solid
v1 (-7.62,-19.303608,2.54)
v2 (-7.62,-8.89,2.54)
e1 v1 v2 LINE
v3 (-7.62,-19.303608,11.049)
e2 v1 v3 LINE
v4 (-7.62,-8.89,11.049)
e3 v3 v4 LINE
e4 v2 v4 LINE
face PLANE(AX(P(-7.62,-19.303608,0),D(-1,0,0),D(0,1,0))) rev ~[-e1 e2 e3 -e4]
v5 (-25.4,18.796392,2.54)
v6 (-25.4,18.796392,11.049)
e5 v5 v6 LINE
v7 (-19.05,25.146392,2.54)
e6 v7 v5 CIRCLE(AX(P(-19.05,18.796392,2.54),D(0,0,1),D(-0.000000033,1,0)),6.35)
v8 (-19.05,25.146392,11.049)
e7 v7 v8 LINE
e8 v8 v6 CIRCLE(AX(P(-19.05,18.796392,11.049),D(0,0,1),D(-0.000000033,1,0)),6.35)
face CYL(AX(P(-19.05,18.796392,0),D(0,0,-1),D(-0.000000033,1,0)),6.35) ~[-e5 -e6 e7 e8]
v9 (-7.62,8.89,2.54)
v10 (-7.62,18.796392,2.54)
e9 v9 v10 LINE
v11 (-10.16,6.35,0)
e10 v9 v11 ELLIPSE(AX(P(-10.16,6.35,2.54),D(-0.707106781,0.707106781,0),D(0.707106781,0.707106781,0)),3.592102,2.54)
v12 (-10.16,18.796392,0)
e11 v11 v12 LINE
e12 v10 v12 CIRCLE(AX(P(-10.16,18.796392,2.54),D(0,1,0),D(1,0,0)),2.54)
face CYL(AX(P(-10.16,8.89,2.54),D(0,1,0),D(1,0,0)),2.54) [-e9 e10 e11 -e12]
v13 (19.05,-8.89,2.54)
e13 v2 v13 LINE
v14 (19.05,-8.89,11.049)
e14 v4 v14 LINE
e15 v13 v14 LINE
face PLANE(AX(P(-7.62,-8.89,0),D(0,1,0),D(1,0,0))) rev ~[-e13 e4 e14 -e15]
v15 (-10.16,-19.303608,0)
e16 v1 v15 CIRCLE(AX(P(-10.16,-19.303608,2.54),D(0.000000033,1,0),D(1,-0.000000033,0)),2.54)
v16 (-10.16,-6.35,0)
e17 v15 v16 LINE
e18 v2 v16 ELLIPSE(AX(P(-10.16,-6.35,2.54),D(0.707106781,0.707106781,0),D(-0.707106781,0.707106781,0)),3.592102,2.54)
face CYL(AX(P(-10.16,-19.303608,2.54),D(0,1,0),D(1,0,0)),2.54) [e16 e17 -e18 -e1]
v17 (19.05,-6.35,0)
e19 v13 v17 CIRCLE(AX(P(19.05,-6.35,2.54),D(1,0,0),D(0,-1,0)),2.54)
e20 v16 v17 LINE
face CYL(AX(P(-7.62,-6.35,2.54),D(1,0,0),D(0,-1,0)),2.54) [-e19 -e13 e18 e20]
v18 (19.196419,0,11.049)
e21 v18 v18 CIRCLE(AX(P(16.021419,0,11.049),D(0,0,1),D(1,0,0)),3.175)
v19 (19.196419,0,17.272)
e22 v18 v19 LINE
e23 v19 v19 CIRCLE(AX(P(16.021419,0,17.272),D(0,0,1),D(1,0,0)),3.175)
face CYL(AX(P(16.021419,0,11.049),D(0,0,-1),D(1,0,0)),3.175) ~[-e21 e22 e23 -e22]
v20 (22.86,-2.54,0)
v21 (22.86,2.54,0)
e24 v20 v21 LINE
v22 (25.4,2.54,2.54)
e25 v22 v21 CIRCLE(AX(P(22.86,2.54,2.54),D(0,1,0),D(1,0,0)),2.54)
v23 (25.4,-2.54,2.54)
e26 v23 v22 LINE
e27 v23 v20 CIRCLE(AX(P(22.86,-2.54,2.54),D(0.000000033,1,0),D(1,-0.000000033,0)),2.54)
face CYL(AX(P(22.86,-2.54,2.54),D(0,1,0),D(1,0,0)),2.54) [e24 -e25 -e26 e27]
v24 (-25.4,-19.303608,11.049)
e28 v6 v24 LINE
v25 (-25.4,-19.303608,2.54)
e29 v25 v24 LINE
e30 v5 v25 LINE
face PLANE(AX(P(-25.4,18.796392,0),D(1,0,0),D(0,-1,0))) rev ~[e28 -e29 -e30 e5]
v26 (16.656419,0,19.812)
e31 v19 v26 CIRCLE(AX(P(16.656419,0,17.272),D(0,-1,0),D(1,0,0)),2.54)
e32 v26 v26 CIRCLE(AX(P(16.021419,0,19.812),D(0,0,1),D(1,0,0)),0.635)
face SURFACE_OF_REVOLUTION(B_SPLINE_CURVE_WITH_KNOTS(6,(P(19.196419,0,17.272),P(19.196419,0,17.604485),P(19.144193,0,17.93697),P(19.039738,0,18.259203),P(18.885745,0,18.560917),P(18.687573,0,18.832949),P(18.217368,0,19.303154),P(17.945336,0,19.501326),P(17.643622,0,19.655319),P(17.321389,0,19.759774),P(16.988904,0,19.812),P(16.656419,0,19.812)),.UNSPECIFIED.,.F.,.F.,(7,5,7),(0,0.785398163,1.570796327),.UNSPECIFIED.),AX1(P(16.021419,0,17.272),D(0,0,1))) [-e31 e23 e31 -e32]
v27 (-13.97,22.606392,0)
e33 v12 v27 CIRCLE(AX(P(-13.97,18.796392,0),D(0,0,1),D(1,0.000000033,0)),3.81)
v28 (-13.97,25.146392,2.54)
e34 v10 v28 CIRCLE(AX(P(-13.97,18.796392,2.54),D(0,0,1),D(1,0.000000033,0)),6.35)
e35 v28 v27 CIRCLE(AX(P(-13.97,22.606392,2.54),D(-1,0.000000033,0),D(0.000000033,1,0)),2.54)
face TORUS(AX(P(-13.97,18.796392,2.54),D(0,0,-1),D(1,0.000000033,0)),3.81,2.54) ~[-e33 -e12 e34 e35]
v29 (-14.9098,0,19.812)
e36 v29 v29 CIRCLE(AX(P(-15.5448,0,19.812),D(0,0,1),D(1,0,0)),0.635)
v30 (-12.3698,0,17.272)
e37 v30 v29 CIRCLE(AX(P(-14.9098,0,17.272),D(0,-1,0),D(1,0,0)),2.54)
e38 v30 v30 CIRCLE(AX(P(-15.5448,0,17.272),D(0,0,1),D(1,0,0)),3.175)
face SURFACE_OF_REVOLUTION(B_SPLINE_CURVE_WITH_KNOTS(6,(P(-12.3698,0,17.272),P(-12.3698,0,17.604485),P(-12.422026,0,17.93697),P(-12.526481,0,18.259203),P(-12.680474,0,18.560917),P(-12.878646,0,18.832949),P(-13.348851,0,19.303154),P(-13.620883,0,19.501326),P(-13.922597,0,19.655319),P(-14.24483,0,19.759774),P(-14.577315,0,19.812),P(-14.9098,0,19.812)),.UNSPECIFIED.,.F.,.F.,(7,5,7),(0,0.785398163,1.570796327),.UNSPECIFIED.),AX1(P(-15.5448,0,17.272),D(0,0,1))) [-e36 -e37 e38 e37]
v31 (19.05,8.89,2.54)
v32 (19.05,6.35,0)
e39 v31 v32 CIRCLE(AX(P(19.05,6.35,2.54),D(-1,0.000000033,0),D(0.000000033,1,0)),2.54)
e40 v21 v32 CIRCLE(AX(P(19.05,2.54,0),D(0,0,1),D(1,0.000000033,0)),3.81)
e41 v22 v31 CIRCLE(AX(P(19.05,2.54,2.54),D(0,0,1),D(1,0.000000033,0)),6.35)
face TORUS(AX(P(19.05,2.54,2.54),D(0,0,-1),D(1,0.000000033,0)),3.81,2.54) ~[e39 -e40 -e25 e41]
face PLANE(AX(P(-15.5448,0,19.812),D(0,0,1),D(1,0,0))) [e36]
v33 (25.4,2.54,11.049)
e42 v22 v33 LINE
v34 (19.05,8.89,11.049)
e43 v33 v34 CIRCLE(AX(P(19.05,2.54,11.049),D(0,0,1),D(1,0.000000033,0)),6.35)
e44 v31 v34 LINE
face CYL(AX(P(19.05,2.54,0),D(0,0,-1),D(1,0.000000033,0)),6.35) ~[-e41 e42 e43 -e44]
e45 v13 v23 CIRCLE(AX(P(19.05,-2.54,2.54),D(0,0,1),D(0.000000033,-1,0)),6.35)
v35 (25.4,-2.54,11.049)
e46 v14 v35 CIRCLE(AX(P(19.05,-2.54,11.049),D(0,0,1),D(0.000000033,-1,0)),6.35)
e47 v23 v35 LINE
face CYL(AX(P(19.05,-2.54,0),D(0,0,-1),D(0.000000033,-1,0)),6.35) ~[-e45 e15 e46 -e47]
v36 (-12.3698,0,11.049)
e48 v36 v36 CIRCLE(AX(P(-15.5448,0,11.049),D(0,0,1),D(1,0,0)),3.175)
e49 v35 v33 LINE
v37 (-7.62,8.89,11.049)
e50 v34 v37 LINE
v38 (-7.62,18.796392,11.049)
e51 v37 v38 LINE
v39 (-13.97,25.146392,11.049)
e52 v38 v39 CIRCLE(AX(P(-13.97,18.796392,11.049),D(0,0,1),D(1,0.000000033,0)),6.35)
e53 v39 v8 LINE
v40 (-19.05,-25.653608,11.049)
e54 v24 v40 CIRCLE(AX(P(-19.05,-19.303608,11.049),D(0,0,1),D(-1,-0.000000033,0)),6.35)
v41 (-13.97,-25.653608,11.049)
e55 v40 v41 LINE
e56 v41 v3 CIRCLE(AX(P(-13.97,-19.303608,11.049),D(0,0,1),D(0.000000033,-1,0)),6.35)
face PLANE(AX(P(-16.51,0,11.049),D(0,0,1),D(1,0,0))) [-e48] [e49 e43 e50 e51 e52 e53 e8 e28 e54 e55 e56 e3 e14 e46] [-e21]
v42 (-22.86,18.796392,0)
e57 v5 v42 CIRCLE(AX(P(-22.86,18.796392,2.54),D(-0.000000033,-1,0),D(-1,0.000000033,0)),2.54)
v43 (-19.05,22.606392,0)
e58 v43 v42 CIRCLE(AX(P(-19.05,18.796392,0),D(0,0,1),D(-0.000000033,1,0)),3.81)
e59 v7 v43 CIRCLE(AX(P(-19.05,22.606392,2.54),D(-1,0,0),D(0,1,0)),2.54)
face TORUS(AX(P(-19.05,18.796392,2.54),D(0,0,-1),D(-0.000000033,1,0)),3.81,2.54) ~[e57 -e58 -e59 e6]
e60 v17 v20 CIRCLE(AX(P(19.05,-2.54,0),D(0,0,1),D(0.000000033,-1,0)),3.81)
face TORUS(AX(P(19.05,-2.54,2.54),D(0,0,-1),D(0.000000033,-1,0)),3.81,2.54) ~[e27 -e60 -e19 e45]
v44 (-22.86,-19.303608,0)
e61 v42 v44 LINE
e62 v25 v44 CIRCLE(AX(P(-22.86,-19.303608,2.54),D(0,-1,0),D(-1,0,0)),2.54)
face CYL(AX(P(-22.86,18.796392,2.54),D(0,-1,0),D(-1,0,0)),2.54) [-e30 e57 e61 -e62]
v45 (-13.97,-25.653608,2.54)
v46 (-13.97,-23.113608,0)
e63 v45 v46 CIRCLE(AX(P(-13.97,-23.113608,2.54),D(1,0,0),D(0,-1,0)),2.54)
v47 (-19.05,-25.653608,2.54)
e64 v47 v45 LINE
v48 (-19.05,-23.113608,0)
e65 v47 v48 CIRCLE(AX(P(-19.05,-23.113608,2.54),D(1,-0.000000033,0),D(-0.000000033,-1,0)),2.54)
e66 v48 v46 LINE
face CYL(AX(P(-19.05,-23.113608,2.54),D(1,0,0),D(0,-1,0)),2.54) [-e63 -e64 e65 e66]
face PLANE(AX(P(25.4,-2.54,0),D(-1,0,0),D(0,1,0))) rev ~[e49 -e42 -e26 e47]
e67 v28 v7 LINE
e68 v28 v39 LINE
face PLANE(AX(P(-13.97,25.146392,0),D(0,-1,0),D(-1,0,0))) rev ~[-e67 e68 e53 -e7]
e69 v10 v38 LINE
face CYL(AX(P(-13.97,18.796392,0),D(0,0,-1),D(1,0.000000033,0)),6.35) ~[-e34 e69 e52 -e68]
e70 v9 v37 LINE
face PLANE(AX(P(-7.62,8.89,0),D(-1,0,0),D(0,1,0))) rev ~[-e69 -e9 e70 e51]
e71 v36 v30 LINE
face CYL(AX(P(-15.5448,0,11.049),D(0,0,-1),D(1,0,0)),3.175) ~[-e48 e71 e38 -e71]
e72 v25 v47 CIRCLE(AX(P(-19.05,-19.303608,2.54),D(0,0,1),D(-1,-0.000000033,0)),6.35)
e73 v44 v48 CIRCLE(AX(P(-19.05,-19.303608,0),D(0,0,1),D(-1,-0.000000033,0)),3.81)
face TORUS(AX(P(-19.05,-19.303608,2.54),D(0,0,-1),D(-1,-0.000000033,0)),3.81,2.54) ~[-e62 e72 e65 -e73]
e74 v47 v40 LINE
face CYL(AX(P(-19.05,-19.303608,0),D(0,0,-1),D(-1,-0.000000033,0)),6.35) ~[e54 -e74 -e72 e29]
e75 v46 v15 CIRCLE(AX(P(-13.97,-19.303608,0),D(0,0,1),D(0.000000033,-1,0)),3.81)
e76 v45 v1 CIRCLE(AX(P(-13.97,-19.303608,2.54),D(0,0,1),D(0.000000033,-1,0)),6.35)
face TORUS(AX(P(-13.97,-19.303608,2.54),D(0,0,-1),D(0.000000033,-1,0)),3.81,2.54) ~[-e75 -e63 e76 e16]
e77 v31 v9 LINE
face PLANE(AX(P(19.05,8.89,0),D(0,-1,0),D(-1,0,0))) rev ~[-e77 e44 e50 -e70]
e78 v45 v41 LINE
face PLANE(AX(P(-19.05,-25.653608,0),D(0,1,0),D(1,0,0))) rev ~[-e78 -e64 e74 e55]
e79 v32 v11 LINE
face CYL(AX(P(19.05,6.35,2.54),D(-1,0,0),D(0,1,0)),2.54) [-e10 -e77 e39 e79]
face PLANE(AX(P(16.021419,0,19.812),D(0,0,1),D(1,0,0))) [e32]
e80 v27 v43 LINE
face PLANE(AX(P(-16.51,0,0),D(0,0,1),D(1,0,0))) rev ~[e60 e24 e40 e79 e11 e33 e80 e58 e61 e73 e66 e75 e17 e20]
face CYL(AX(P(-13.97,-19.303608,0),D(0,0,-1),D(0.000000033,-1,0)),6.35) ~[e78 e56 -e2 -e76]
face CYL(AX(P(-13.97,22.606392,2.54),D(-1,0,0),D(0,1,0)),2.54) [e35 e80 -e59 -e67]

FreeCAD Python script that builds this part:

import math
import FreeCAD as App
import Part
import Sketcher
from FreeCAD import Vector
Q = App.Units.Quantity


def edges_at(feature, points):
    """Names of the edges that pass closest to the given points."""
    edges = feature.Shape.Edges
    near = lambda p: min(range(len(edges)), key=lambda i: edges[i].distToShape(Part.Vertex(*p))[0])
    return sorted({f"Edge{near(p) + 1}" for p in points})

doc = App.newDocument("Part")
body = doc.addObject("PartDesign::Body", "Body")

# Sketch on XY plane
sketch1 = doc.addObject("Sketcher::SketchObject", "Sketch")
body.addObject(sketch1)
sketch1.AttachmentSupport = (doc.XY_Plane, [""])
sketch1.MapMode = "FlatFace"
sketch1.addGeometry(Part.ArcOfCircle(Part.Circle(Vector(-19, -19, 0), Vector(0, 0, 1), 6), math.radians(-180), math.radians(-90)), False)
sketch1.addGeometry(Part.LineSegment(Vector(-19, -26, 0), Vector(-14, -26, 0)), False)
sketch1.addGeometry(Part.ArcOfCircle(Part.Circle(Vector(-14, -19, 0), Vector(0, 0, 1), 6), math.radians(-90), math.radians(0)), False)
sketch1.addGeometry(Part.LineSegment(Vector(-8, -19, 0), Vector(-8, -9, 0)), False)
sketch1.addGeometry(Part.LineSegment(Vector(-8, -9, 0), Vector(19, -9, 0)), False)
sketch1.addGeometry(Part.ArcOfCircle(Part.Circle(Vector(19, -3, 0), Vector(0, 0, 1), 6), math.radians(-90), math.radians(0)), False)
sketch1.addGeometry(Part.LineSegment(Vector(25, -3, 0), Vector(25, 3, 0)), False)
sketch1.addGeometry(Part.ArcOfCircle(Part.Circle(Vector(19, 3, 0), Vector(0, 0, 1), 6), math.radians(0), math.radians(90)), False)
sketch1.addGeometry(Part.LineSegment(Vector(19, 9, 0), Vector(-8, 9, 0)), False)
sketch1.addGeometry(Part.LineSegment(Vector(-8, 9, 0), Vector(-8, 19, 0)), False)
sketch1.addGeometry(Part.ArcOfCircle(Part.Circle(Vector(-14, 19, 0), Vector(0, 0, 1), 6), math.radians(0), math.radians(90)), False)
sketch1.addGeometry(Part.LineSegment(Vector(-14, 25, 0), Vector(-19, 25, 0)), False)
sketch1.addGeometry(Part.ArcOfCircle(Part.Circle(Vector(-19, 19, 0), Vector(0, 0, 1), 6), math.radians(90), math.radians(180)), False)
sketch1.addGeometry(Part.LineSegment(Vector(-25, 19, 0), Vector(-25, -19, 0)), False)
sketch1.addConstraint(Sketcher.Constraint("Tangent", 0, 2, 1, 1))
sketch1.addConstraint(Sketcher.Constraint("Tangent", 1, 2, 2, 1))
sketch1.addConstraint(Sketcher.Constraint("Tangent", 2, 2, 3, 1))
sketch1.addConstraint(Sketcher.Constraint("Coincident", 3, 2, 4, 1))
sketch1.addConstraint(Sketcher.Constraint("Tangent", 4, 2, 5, 1))
sketch1.addConstraint(Sketcher.Constraint("Tangent", 5, 2, 6, 1))
sketch1.addConstraint(Sketcher.Constraint("Tangent", 6, 2, 7, 1))
sketch1.addConstraint(Sketcher.Constraint("Tangent", 7, 2, 8, 1))
sketch1.addConstraint(Sketcher.Constraint("Coincident", 8, 2, 9, 1))
sketch1.addConstraint(Sketcher.Constraint("Tangent", 9, 2, 10, 1))
sketch1.addConstraint(Sketcher.Constraint("Tangent", 10, 2, 11, 1))
sketch1.addConstraint(Sketcher.Constraint("Tangent", 11, 2, 12, 1))
sketch1.addConstraint(Sketcher.Constraint("Tangent", 12, 2, 13, 1))
sketch1.addConstraint(Sketcher.Constraint("Tangent", 13, 2, 0, 1))
sketch1.addConstraint(Sketcher.Constraint("Horizontal", 1))
sketch1.addConstraint(Sketcher.Constraint("Vertical", 3))
sketch1.addConstraint(Sketcher.Constraint("Horizontal", 4))
sketch1.addConstraint(Sketcher.Constraint("Vertical", 6))
sketch1.addConstraint(Sketcher.Constraint("Horizontal", 8))
sketch1.addConstraint(Sketcher.Constraint("Vertical", 9))
sketch1.addConstraint(Sketcher.Constraint("Horizontal", 11))
sketch1.addConstraint(Sketcher.Constraint("Vertical", 13))
sketch1.addConstraint(Sketcher.Constraint("Equal", 0, 2))
sketch1.addConstraint(Sketcher.Constraint("Equal", 2, 5))
sketch1.addConstraint(Sketcher.Constraint("Equal", 5, 7))
sketch1.addConstraint(Sketcher.Constraint("Equal", 7, 10))
sketch1.addConstraint(Sketcher.Constraint("Equal", 10, 12))
sketch1.addConstraint(Sketcher.Constraint("Symmetric", 3, 2, 8, 2, -1))
sketch1.addConstraint(Sketcher.Constraint("Equal", 11, 6))
sketch1.addConstraint(Sketcher.Constraint("Radius", 0, Q("0.25 in")))
sketch1.addConstraint(Sketcher.Constraint("DistanceX", 1, 1, 1, 2, Q("0.2 in")))
sketch1.addConstraint(Sketcher.Constraint("DistanceY", 13, 2, 13, 1, Q("1.5 in")))
sketch1.addConstraint(Sketcher.Constraint("DistanceX", -1, 1, 5, 2, Q("1 in")))
sketch1.addConstraint(Sketcher.Constraint("DistanceX", 12, 2, -1, 1, Q("1 in")))
sketch1.addConstraint(Sketcher.Constraint("DistanceY", 3, 1, 3, 2, Q("10.413608 mm")))
pad1 = doc.addObject("PartDesign::Pad", "Pad")
body.addObject(pad1)
pad1.Profile = sketch1
pad1.Length = Q("0.435 in")
doc.recompute()

fillet = doc.addObject("PartDesign::Fillet", "Fillet")
body.addObject(fillet)
fillet.Base = (pad1, edges_at(pad1, [(-7.62, -14.097, 0), (5.715, -8.89, 0), (23.54, -7.03, 0)]))
fillet.Radius = Q("0.1 in")

# Sketch on XY plane
sketch2 = doc.addObject("Sketcher::SketchObject", "Sketch001")
body.addObject(sketch2)
sketch2.AttachmentSupport = (doc.XY_Plane, [""])
sketch2.MapMode = "FlatFace"
sketch2.AttachmentOffset = App.Placement(Vector(0, 0, 0.435 * 25.4), App.Rotation())
sketch2.addGeometry(Part.Circle(Vector(16, 0, 0), Vector(0, 0, 1), 3.2), False)
sketch2.addGeometry(Part.Circle(Vector(-15.5, 0, 0), Vector(0, 0, 1), 3.2), False)
sketch2.addConstraint(Sketcher.Constraint("Equal", 0, 1))
sketch2.addConstraint(Sketcher.Constraint("PointOnObject", 0, 3, -1))
sketch2.addConstraint(Sketcher.Constraint("PointOnObject", 1, 3, -1))
sketch2.addConstraint(Sketcher.Constraint("Diameter", 0, Q("0.25 in")))
sketch2.addConstraint(Sketcher.Constraint("DistanceX", 1, 3, -1, 1, Q("0.612 in")))
sketch2.addConstraint(Sketcher.Constraint("DistanceX", -1, 1, 0, 3, Q("16.021419 mm")))
pad2 = doc.addObject("PartDesign::Pad", "Pad001")
body.addObject(pad2)
pad2.Profile = sketch2
pad2.Length = Q("0.345 in")
doc.recompute()

fillet2 = doc.addObject("PartDesign::Fillet", "Fillet001")
body.addObject(fillet2)
fillet2.Base = (pad2, edges_at(pad2, [(-18.72, 0, 19.812), (12.846, 0, 19.812)]))
fillet2.Radius = Q("0.1 in")

doc.recompute()
